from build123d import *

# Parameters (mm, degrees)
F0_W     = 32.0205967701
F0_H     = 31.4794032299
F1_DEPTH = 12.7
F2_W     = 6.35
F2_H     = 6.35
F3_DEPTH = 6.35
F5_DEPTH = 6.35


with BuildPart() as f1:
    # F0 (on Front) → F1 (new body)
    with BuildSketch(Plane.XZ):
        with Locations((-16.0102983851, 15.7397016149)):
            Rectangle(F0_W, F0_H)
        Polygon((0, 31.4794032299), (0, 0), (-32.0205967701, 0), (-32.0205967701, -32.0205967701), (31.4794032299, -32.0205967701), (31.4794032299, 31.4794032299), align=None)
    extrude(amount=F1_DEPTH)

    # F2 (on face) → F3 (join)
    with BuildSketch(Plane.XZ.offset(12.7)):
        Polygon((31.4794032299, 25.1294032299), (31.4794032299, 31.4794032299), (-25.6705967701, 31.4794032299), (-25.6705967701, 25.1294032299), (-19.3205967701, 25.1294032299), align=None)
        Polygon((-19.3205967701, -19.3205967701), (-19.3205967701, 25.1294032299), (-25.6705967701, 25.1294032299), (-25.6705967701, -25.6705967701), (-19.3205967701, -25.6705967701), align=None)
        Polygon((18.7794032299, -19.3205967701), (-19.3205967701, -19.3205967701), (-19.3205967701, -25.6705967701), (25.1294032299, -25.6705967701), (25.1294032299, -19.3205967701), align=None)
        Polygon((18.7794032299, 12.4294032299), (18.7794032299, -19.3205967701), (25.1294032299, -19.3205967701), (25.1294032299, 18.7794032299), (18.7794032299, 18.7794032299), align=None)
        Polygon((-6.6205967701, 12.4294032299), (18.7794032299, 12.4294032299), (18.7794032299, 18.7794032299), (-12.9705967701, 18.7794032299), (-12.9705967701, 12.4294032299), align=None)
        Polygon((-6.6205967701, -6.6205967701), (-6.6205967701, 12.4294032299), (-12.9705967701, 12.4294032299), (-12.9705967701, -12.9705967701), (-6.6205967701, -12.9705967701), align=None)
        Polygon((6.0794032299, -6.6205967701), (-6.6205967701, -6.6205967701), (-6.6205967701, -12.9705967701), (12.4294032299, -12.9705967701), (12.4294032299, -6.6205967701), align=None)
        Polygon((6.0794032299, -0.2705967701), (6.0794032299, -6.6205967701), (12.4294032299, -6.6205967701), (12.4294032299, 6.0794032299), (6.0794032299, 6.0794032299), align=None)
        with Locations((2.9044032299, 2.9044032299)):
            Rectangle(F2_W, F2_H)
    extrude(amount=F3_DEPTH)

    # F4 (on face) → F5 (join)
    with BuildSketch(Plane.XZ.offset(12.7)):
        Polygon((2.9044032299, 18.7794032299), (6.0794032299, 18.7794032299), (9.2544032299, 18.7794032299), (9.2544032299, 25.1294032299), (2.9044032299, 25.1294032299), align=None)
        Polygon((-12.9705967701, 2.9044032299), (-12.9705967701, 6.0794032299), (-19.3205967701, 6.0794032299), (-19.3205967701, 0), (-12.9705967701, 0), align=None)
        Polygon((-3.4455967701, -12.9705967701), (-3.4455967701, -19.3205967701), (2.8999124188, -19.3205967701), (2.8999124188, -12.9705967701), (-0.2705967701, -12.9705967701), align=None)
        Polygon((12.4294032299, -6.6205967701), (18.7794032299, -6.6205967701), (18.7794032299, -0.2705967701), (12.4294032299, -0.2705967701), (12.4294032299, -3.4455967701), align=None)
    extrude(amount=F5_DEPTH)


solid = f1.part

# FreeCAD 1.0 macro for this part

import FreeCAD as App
import Part
import Sketcher
from FreeCAD import Vector
Q = App.Units.Quantity


def add_polygon(sketch, points):
    """Adds a closed chain of lines whose ends are joined by coincident constraints."""
    first, n = sketch.GeometryCount, len(points)
    for a, b in zip(points, points[1:] + points[:1]):
        sketch.addGeometry(Part.LineSegment(App.Vector(*a, 0), App.Vector(*b, 0)), False)
    for i in range(n):
        sketch.addConstraint(Sketcher.Constraint("Coincident", first + i, 2, first + (i + 1) % n, 1))

doc = App.newDocument("Part")
body = doc.addObject("PartDesign::Body", "Body")

# Sketch on XZ plane
sketch1 = body.newObject("Sketcher::SketchObject", "Sketch")
sketch1.AttachmentSupport = (doc.getObject("XZ_Plane"), [""])
sketch1.MapMode = "FlatFace"
add_polygon(sketch1, [(-32, 31), (-32, -32), (31, -32), (31, 31)])  # lines 0-3
sketch1.addConstraint([
    Sketcher.Constraint("Vertical", 0),
    Sketcher.Constraint("Horizontal", 1),
    Sketcher.Constraint("Vertical", 2),
    Sketcher.Constraint("Horizontal", 3),
    Sketcher.Constraint("Equal", 3, 0),
    Sketcher.Constraint("DistanceX", 1, 1, 1, 2, Q("2.5 in")),
    Sketcher.Constraint("DistanceX", 0, 2, -1, 1, Q("32.020597 mm")),
    Sketcher.Constraint("DistanceY", 0, 2, -1, 1, Q("32.020597 mm")),
])
pad1 = body.newObject("PartDesign::Pad", "Pad")
pad1.Profile = sketch1
pad1.Length = Q("0.5 in")

# Sketch on XZ plane
sketch2 = body.newObject("Sketcher::SketchObject", "Sketch001")
sketch2.AttachmentSupport = (doc.getObject("XZ_Plane"), [""])
sketch2.MapMode = "FlatFace"
sketch2.AttachmentOffset = App.Placement(Vector(0, 0, 0.5 * 25.4), App.Rotation())
add_polygon(sketch2, [(31, 25), (31, 31), (-26, 31), (-26, -26), (25, -26), (25, 19), (-13, 19), (-13, -13), (12, -13), (12, 6), (0, 6), (0, 0), (6, 0), (6, -7), (-7, -7), (-7, 12), (19, 12), (19, -19), (-19, -19), (-19, 25)])  # lines 0-19
sketch2.addConstraint([
    Sketcher.Constraint("Vertical", 0),
    Sketcher.Constraint("Horizontal", 1),
    Sketcher.Constraint("Vertical", 2),
    Sketcher.Constraint("Horizontal", 3),
    Sketcher.Constraint("Vertical", 4),
    Sketcher.Constraint("Horizontal", 5),
    Sketcher.Constraint("Vertical", 6),
    Sketcher.Constraint("Horizontal", 7),
    Sketcher.Constraint("Vertical", 8),
    Sketcher.Constraint("Horizontal", 9),
    Sketcher.Constraint("Vertical", 10),
    Sketcher.Constraint("Horizontal", 11),
    Sketcher.Constraint("Vertical", 12),
    Sketcher.Constraint("Horizontal", 13),
    Sketcher.Constraint("Vertical", 14),
    Sketcher.Constraint("Horizontal", 15),
    Sketcher.Constraint("Vertical", 16),
    Sketcher.Constraint("Horizontal", 17),
    Sketcher.Constraint("Vertical", 18),
    Sketcher.Constraint("Horizontal", 19),
    Sketcher.Constraint("Equal", 9, 13),
    Sketcher.Constraint("Equal", 7, 15),
    Sketcher.Constraint("Equal", 5, 17),
    Sketcher.Constraint("Equal", 3, 19),
    Sketcher.Constraint("Equal", 11, 0),
    Sketcher.Constraint("Equal", 1, 2),
    Sketcher.Constraint("Equal", 0, 10),
    Sketcher.Constraint("Equal", 10, 12),
    Sketcher.Constraint("Equal", 8, 14),
    Sketcher.Constraint("Equal", 6, 16),
    Sketcher.Constraint("Equal", 4, 18),
    Sketcher.Constraint("DistanceX", 3, 1, 3, 2, Q("2 in")),
    Sketcher.Constraint("DistanceX", 7, 1, 7, 2, Q("1 in")),
    Sketcher.Constraint("DistanceX", 5, 2, 5, 1, Q("1.5 in")),
    Sketcher.Constraint("DistanceX", 9, 2, 9, 1, Q("0.5 in")),
    Sketcher.Constraint("DistanceY", 16, 2, 8, 2, Q("1 in")),
    Sketcher.Constraint("DistanceX", 1, 2, 1, 1, Q("2.25 in")),
    Sketcher.Constraint("DistanceY", 6, 2, 6, 1, Q("1.25 in")),
    Sketcher.Constraint("DistanceX", -1, 1, 0, 2, Q("31.479403 mm")),
    Sketcher.Constraint("DistanceY", -1, 1, 0, 2, Q("31.479403 mm")),
])
pad2 = body.newObject("PartDesign::Pad", "Pad001")
pad2.Profile = sketch2
pad2.Length = Q("0.25 in")

# Sketch on XZ plane
sketch3 = body.newObject("Sketcher::SketchObject", "Sketch002")
sketch3.AttachmentSupport = (doc.getObject("XZ_Plane"), [""])
sketch3.MapMode = "FlatFace"
sketch3.AttachmentOffset = App.Placement(Vector(0, 0, 0.5 * 25.4), App.Rotation())
add_polygon(sketch3, [(3, 19), (9, 19), (9, 25), (3, 25)])  # lines 0-3
add_polygon(sketch3, [(-13, 6), (-19, 6), (-19, 0), (-13, 0)])  # lines 4-7
add_polygon(sketch3, [(-3, -13), (-3, -19), (3, -19), (3, -13)])  # lines 8-11
add_polygon(sketch3, [(12, -7), (19, -7), (19, 0), (12, 0)])  # lines 12-15
sketch3.addConstraint([
    Sketcher.Constraint("Horizontal", 0),
    Sketcher.Constraint("Vertical", 1),
    Sketcher.Constraint("Horizontal", 2),
    Sketcher.Constraint("Vertical", 3),
    Sketcher.Constraint("Horizontal", 4),
    Sketcher.Constraint("Vertical", 5),
    Sketcher.Constraint("Horizontal", 6),
    Sketcher.Constraint("Vertical", 7),
    Sketcher.Constraint("Vertical", 8),
    Sketcher.Constraint("Horizontal", 9),
    Sketcher.Constraint("Vertical", 10),
    Sketcher.Constraint("Horizontal", 11),
    Sketcher.Constraint("Horizontal", 12),
    Sketcher.Constraint("Vertical", 13),
    Sketcher.Constraint("Horizontal", 14),
    Sketcher.Constraint("Vertical", 15),
    Sketcher.Constraint("PointOnObject", 5, 2, -1),
    Sketcher.Constraint("Equal", 2, 4),
    Sketcher.Constraint("Equal", 6, 12),
    Sketcher.Constraint("Equal", 14, 1),
    Sketcher.Constraint("Equal", 3, 8),
    Sketcher.Constraint("Equal", 10, 13),
    Sketcher.Constraint("DistanceY", 8, 2, 7, 2, Q("1 in")),
    Sketcher.Constraint("DistanceY", 12, 2, 0, 2, Q("1 in")),
    Sketcher.Constraint("DistanceX", 0, 1, 0, 2, Q("0.25 in")),
    Sketcher.Constraint("DistanceY", 4, 2, 3, 2, Q("0.5 in")),
    Sketcher.Constraint("DistanceX", 8, 2, 3, 2, Q("0.25 in")),
    Sketcher.Constraint("DistanceX", 4, 2, 3, 2, Q("0.875 in")),
    Sketcher.Constraint("DistanceX", 11, 2, 12, 2, Q("0.875 in")),
    Sketcher.Constraint("DistanceX", 9, 1, 9, 2, Q("6.345509 mm")),
    Sketcher.Constraint("DistanceY", 5, 2, 5, 1, Q("6.079403 mm")),
    Sketcher.Constraint("DistanceX", -1, 1, 0, 2, Q("9.254403 mm")),
])
pad3 = body.newObject("PartDesign::Pad", "Pad002")
pad3.Profile = sketch3
pad3.Length = Q("0.25 in")

doc.recompute()
